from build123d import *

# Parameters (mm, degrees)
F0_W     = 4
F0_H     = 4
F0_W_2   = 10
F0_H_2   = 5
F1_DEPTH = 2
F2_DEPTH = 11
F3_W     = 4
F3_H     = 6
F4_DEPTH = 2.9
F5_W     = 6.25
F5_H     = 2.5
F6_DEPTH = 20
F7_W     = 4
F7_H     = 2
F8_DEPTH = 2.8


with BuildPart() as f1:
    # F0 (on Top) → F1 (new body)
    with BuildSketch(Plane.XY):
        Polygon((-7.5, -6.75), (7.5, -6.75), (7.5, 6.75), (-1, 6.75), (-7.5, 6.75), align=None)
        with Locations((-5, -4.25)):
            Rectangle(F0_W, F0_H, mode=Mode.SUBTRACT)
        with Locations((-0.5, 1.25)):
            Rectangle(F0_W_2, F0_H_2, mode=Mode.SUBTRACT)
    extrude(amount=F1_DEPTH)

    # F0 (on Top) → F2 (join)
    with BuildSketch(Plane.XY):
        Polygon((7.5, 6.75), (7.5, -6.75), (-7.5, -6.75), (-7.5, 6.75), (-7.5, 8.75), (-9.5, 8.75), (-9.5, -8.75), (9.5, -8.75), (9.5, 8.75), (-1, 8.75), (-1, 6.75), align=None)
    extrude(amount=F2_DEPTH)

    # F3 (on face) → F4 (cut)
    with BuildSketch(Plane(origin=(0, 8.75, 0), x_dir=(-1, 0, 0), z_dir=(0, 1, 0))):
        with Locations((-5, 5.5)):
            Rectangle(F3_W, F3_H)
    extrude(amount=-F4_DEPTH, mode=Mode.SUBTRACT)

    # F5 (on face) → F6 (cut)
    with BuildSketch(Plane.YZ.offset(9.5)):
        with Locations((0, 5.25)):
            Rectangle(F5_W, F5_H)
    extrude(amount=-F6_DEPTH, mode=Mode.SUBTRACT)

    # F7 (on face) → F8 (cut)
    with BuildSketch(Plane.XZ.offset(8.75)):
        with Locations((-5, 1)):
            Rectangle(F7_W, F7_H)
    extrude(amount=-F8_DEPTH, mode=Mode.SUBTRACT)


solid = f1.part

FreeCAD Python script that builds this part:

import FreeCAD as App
import Part
import Sketcher
Q = App.Units.Quantity


def add_polygon(sketch, points):
    """Adds a closed chain of lines whose ends are joined by coincident constraints."""
    first, n = sketch.GeometryCount, len(points)
    for a, b in zip(points, points[1:] + points[:1]):
        sketch.addGeometry(Part.LineSegment(App.Vector(*a, 0), App.Vector(*b, 0)), False)
    for i in range(n):
        sketch.addConstraint(Sketcher.Constraint("Coincident", first + i, 2, first + (i + 1) % n, 1))

doc = App.newDocument("Part")
params = doc.addObject("Spreadsheet::Sheet", "Params")
for row, (alias, value) in enumerate([
    ("sketch1_width", "15 mm"),
    ("sketch1_width2", "4 mm"),
    ("sketch1_width3", "10 mm"),
    ("sketch1_height", "5 mm"),
    ("sketch1_height2", "13.5 mm"),
    ("pad1_length", "2 mm"),
    ("sketch2_width", "15 mm"),
    ("sketch2_width2", "2 mm"),
    ("sketch2_width3", "10.5 mm"),
    ("sketch2_height", "13.5 mm"),
    ("pad2_length", "11 mm"),
    ("sketch3_width", "4 mm"),
    ("sketch3_height", "6 mm"),
    ("pocket1_length", "2.9 mm"),
    ("sketch4_height", "2.5 mm"),
    ("sketch4_width", "6.25 mm"),
    ("pocket2_length", "20 mm"),
    ("sketch5_width", "4 mm"),
    ("sketch5_height", "2 mm"),
    ("pocket3_length", "2.8 mm"),
], start=1):
    params.set(f"A{row}", alias)
    params.set(f"B{row}", "=" + value)
    params.setAlias(f"B{row}", alias)

body = doc.addObject("PartDesign::Body", "Body")

# Sketch on XY plane
sketch1 = body.newObject("Sketcher::SketchObject", "Sketch")
sketch1.AttachmentSupport = (doc.getObject("XY_Plane"), [""])
sketch1.MapMode = "FlatFace"
add_polygon(sketch1, [(-7.5, -6.8), (7.5, -6.8), (7.5, 6.8), (-7.5, 6.8)])  # lines 0-3
add_polygon(sketch1, [(-3, -6.2), (-7, -6.2), (-7, -2.2), (-3, -2.2)])  # lines 4-7
add_polygon(sketch1, [(4.5, -1.2), (-5.5, -1.2), (-5.5, 3.8), (4.5, 3.8)])  # lines 8-11
sketch1.addConstraint(Sketcher.Constraint("Horizontal", 0))
sketch1.addConstraint(Sketcher.Constraint("Vertical", 1))
sketch1.addConstraint(Sketcher.Constraint("Horizontal", 2))
sketch1.addConstraint(Sketcher.Constraint("Vertical", 3))
sketch1.addConstraint(Sketcher.Constraint("Horizontal", 4))
sketch1.addConstraint(Sketcher.Constraint("Vertical", 5))
sketch1.addConstraint(Sketcher.Constraint("Horizontal", 6))
sketch1.addConstraint(Sketcher.Constraint("Vertical", 7))
sketch1.addConstraint(Sketcher.Constraint("Horizontal", 8))
sketch1.addConstraint(Sketcher.Constraint("Vertical", 9))
sketch1.addConstraint(Sketcher.Constraint("Horizontal", 10))
sketch1.addConstraint(Sketcher.Constraint("Vertical", 11))
sketch1.addConstraint(Sketcher.Constraint("Symmetric", 0, 2, 2, 2, -1, 1))
sketch1.addConstraint(Sketcher.Constraint("Equal", 6, 5))
sketch1.addConstraint(Sketcher.Constraint("DistanceX", 0, 1, 0, 2, Q("15 mm")))
sketch1.addConstraint(Sketcher.Constraint("DistanceX", 4, 2, 4, 1, Q("4 mm")))
sketch1.addConstraint(Sketcher.Constraint("DistanceX", 8, 2, 8, 1, Q("10 mm")))
sketch1.addConstraint(Sketcher.Constraint("DistanceY", 9, 1, 9, 2, Q("5 mm")))
sketch1.addConstraint(Sketcher.Constraint("DistanceY", 1, 1, 1, 2, Q("13.5 mm")))
sketch1.addConstraint(Sketcher.Constraint("DistanceX", 4, 2, -1, 1, Q("7 mm")))
sketch1.addConstraint(Sketcher.Constraint("DistanceY", 4, 2, 2, 2, Q("13 mm")))
sketch1.addConstraint(Sketcher.Constraint("DistanceY", 5, 2, 8, 2, Q("1 mm")))
sketch1.addConstraint(Sketcher.Constraint("DistanceX", 3, 2, 8, 2, Q("2 mm")))
sketch1.setExpression("Constraints[26]", "Params.sketch1_width")
sketch1.setExpression("Constraints[27]", "Params.sketch1_width2")
sketch1.setExpression("Constraints[28]", "Params.sketch1_width3")
sketch1.setExpression("Constraints[29]", "Params.sketch1_height")
sketch1.setExpression("Constraints[30]", "Params.sketch1_height2")
pad1 = body.newObject("PartDesign::Pad", "Pad")
pad1.Profile = sketch1
pad1.setExpression("Length", "Params.pad1_length")

# Sketch on XY plane
sketch2 = body.newObject("Sketcher::SketchObject", "Sketch001")
sketch2.AttachmentSupport = (doc.getObject("XY_Plane"), [""])
sketch2.MapMode = "FlatFace"
add_polygon(sketch2, [(7.5, 6.8), (7.5, -6.8), (-7.5, -6.8), (-7.5, 8.8), (-9.5, 8.8), (-9.5, -8.8), (9.5, -8.8), (9.5, 8.8), (-1, 8.8), (-1, 6.8)])  # lines 0-9
sketch2.addConstraint(Sketcher.Constraint("Vertical", 0))
sketch2.addConstraint(Sketcher.Constraint("Horizontal", 1))
sketch2.addConstraint(Sketcher.Constraint("Vertical", 2))
sketch2.addConstraint(Sketcher.Constraint("Horizontal", 3))
sketch2.addConstraint(Sketcher.Constraint("Vertical", 4))
sketch2.addConstraint(Sketcher.Constraint("Horizontal", 5))
sketch2.addConstraint(Sketcher.Constraint("Vertical", 6))
sketch2.addConstraint(Sketcher.Constraint("Horizontal", 7))
sketch2.addConstraint(Sketcher.Constraint("Vertical", 8))
sketch2.addConstraint(Sketcher.Constraint("Horizontal", 9))
sketch2.addConstraint(Sketcher.Constraint("Symmetric", 3, 2, 5, 2, -1, 1))
sketch2.addConstraint(Sketcher.Constraint("Symmetric", 1, 2, 9, 2, -1, 1))
sketch2.addConstraint(Sketcher.Constraint("Horizontal", 3, 2, 6, 2))
sketch2.addConstraint(Sketcher.Constraint("Equal", 3, 8))
sketch2.addConstraint(Sketcher.Constraint("DistanceX", 1, 2, 1, 1, Q("15 mm")))
sketch2.addConstraint(Sketcher.Constraint("DistanceX", 3, 2, 3, 1, Q("2 mm")))
sketch2.addConstraint(Sketcher.Constraint("DistanceX", 7, 2, 7, 1, Q("10.5 mm")))
sketch2.addConstraint(Sketcher.Constraint("DistanceY", 0, 2, 0, 1, Q("13.5 mm")))
sketch2.setExpression("Constraints[24]", "Params.sketch2_width")
sketch2.setExpression("Constraints[25]", "Params.sketch2_width2")
sketch2.setExpression("Constraints[26]", "Params.sketch2_width3")
sketch2.setExpression("Constraints[27]", "Params.sketch2_height")
pad2 = body.newObject("PartDesign::Pad", "Pad001")
pad2.Profile = sketch2
pad2.setExpression("Length", "Params.pad2_length")

# Sketch on XZ plane
sketch3 = body.newObject("Sketcher::SketchObject", "Sketch002")
sketch3.AttachmentSupport = (doc.getObject("XZ_Plane"), [""])
sketch3.MapMode = "FlatFace"
sketch3.AttachmentOffset = App.Placement(App.Vector(0, 0, -8.75), App.Rotation())
add_polygon(sketch3, [(7, 8.5), (7, 2.5), (3, 2.5), (3, 8.5)])  # lines 0-3
sketch3.addConstraint(Sketcher.Constraint("Vertical", 0))
sketch3.addConstraint(Sketcher.Constraint("Horizontal", 1))
sketch3.addConstraint(Sketcher.Constraint("Vertical", 2))
sketch3.addConstraint(Sketcher.Constraint("Horizontal", 3))
sketch3.addConstraint(Sketcher.Constraint("DistanceX", 1, 2, 1, 1, Q("4 mm")))
sketch3.addConstraint(Sketcher.Constraint("DistanceY", 0, 2, 0, 1, Q("6 mm")))
sketch3.addConstraint(Sketcher.Constraint("DistanceX", -1, 1, 0, 2, Q("7 mm")))
sketch3.addConstraint(Sketcher.Constraint("DistanceY", -1, 1, 0, 2, Q("2.5 mm")))
sketch3.setExpression("Constraints[8]", "Params.sketch3_width")
sketch3.setExpression("Constraints[9]", "Params.sketch3_height")
pocket1 = body.newObject("PartDesign::Pocket", "Pocket")
pocket1.Profile = sketch3
pocket1.setExpression("Length", "Params.pocket1_length")
pocket1.Reversed = True

# Sketch on YZ plane
sketch4 = body.newObject("Sketcher::SketchObject", "Sketch003")
sketch4.AttachmentSupport = (doc.getObject("YZ_Plane"), [""])
sketch4.MapMode = "FlatFace"
sketch4.AttachmentOffset = App.Placement(App.Vector(0, 0, 9.5), App.Rotation())
add_polygon(sketch4, [(-3.1, 6.5), (-3.1, 4), (3.1, 4), (3.1, 6.5)])  # lines 0-3
sketch4.addConstraint(Sketcher.Constraint("Vertical", 0))
sketch4.addConstraint(Sketcher.Constraint("Horizontal", 1))
sketch4.addConstraint(Sketcher.Constraint("Vertical", 2))
sketch4.addConstraint(Sketcher.Constraint("Horizontal", 3))
sketch4.addConstraint(Sketcher.Constraint("DistanceY", 0, 2, 0, 1, Q("2.5 mm")))
sketch4.addConstraint(Sketcher.Constraint("DistanceY", -1, 1, 0, 2, Q("4 mm")))
sketch4.addConstraint(Sketcher.Constraint("DistanceX", 1, 1, 1, 2, Q("6.25 mm")))
sketch4.addConstraint(Sketcher.Constraint("DistanceX", 0, 2, -1, 1, Q("3.125 mm")))
sketch4.setExpression("Constraints[8]", "Params.sketch4_height")
sketch4.setExpression("Constraints[10]", "Params.sketch4_width")
pocket2 = body.newObject("PartDesign::Pocket", "Pocket001")
pocket2.Profile = sketch4
pocket2.setExpression("Length", "Params.pocket2_length")

# Sketch on XZ plane
sketch5 = body.newObject("Sketcher::SketchObject", "Sketch004")
sketch5.AttachmentSupport = (doc.getObject("XZ_Plane"), [""])
sketch5.MapMode = "FlatFace"
sketch5.AttachmentOffset = App.Placement(App.Vector(0, 0, 8.75), App.Rotation())
add_polygon(sketch5, [(-7, 2), (-7, 0), (-3, 0), (-3, 2)])  # lines 0-3
sketch5.addConstraint(Sketcher.Constraint("Vertical", 0))
sketch5.addConstraint(Sketcher.Constraint("Horizontal", 1))
sketch5.addConstraint(Sketcher.Constraint("Vertical", 2))
sketch5.addConstraint(Sketcher.Constraint("Horizontal", 3))
sketch5.addConstraint(Sketcher.Constraint("PointOnObject", 0, 2, -1))
sketch5.addConstraint(Sketcher.Constraint("DistanceX", 1, 1, 1, 2, Q("4 mm")))
sketch5.addConstraint(Sketcher.Constraint("DistanceY", 0, 2, 0, 1, Q("2 mm")))
sketch5.addConstraint(Sketcher.Constraint("DistanceX", 0, 2, -1, 1, Q("7 mm")))
sketch5.setExpression("Constraints[9]", "Params.sketch5_width")
sketch5.setExpression("Constraints[10]", "Params.sketch5_height")
pocket3 = body.newObject("PartDesign::Pocket", "Pocket002")
pocket3.Profile = sketch5
pocket3.setExpression("Length", "Params.pocket3_length")

doc.recompute()
